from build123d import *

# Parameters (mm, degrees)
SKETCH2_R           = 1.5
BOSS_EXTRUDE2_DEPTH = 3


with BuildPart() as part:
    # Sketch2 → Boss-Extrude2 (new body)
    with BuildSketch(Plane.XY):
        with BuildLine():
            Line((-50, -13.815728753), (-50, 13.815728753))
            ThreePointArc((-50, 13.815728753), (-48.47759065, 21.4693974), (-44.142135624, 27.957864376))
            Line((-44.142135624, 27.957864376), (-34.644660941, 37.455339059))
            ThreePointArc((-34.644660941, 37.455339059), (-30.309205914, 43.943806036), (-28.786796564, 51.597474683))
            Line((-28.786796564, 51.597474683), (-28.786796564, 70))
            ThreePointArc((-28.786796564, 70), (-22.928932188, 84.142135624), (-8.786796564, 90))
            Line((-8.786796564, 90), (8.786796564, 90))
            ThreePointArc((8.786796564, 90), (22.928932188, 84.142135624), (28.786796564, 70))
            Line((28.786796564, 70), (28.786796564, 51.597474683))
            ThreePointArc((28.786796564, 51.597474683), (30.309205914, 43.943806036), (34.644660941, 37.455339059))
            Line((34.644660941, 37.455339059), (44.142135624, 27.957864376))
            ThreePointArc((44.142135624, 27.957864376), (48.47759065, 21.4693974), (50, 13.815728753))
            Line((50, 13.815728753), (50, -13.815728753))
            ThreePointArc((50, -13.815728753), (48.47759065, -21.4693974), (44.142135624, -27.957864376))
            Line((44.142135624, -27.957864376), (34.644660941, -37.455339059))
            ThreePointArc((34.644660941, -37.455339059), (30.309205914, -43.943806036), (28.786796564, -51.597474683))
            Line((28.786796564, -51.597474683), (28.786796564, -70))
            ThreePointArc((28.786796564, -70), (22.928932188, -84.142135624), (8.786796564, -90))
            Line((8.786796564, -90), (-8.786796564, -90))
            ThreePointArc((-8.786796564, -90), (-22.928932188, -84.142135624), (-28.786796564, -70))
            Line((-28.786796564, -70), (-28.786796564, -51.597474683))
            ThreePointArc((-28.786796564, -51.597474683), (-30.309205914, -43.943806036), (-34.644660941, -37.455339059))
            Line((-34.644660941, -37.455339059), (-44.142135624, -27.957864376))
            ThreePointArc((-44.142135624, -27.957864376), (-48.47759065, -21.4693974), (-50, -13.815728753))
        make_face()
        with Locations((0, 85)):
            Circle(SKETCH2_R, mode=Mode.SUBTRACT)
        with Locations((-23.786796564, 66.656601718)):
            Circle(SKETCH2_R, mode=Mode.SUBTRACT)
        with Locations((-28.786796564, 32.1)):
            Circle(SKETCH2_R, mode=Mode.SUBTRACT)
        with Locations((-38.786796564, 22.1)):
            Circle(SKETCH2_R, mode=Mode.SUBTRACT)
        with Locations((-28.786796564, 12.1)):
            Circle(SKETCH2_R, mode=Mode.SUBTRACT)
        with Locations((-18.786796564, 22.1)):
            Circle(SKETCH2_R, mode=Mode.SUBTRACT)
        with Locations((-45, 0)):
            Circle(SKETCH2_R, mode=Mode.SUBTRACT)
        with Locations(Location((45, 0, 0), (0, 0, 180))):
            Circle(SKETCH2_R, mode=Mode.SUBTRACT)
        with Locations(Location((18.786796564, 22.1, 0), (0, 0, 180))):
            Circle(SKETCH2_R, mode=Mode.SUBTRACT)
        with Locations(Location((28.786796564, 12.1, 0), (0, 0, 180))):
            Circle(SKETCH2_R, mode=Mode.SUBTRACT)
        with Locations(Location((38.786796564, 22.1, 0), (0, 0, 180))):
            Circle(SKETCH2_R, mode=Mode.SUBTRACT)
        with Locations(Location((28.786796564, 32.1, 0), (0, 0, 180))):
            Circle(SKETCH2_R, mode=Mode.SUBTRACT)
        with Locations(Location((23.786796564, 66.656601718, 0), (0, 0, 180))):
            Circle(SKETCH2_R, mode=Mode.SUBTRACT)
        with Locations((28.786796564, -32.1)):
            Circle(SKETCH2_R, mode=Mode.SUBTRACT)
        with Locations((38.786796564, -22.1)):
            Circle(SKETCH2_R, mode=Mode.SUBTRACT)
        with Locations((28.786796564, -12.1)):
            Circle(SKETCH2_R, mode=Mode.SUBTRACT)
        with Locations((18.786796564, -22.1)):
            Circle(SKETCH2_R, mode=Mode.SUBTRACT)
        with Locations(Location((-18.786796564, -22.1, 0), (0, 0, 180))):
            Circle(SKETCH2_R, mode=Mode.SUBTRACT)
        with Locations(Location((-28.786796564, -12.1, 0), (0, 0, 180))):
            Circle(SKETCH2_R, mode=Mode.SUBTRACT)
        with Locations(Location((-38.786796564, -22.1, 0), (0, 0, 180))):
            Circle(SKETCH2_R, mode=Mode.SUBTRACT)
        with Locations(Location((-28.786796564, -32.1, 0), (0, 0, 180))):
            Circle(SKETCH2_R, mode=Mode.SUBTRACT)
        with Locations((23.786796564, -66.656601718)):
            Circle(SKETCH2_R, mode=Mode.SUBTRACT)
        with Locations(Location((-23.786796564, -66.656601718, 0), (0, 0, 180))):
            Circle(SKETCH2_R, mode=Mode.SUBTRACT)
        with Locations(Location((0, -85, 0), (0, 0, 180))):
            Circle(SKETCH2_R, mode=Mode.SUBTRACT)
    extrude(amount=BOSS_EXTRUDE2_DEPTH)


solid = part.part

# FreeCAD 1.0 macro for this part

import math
import FreeCAD as App
import Part
import Sketcher
Q = App.Units.Quantity

doc = App.newDocument("Part")
body = doc.addObject("PartDesign::Body", "Body")

# Sketch on XY plane
sketch1 = body.newObject("Sketcher::SketchObject", "Sketch")
sketch1.AttachmentSupport = (doc.getObject("XY_Plane"), [""])
sketch1.MapMode = "FlatFace"
sketch1.addGeometry(Part.LineSegment(App.Vector(-50, 13.815729, 0), App.Vector(-50, -13.815729, 0)), False)
sketch1.addGeometry(Part.ArcOfCircle(Part.Circle(App.Vector(-30, -13.815729, 0), App.Vector(0, 0, 1), 20), math.radians(-180), math.radians(-135)), False)
sketch1.addGeometry(Part.LineSegment(App.Vector(-44.142136, -27.957864, 0), App.Vector(-34.644661, -37.455339, 0)), False)
sketch1.addGeometry(Part.ArcOfCircle(Part.Circle(App.Vector(-48.786797, -51.597475, 0), App.Vector(0, 0, 1), 20), math.radians(0), math.radians(45)), False)
sketch1.addGeometry(Part.LineSegment(App.Vector(-28.786797, -51.597475, 0), App.Vector(-28.786797, -70, 0)), False)
sketch1.addGeometry(Part.ArcOfCircle(Part.Circle(App.Vector(-8.786797, -70, 0), App.Vector(0, 0, 1), 20), math.radians(180), math.radians(270)), False)
sketch1.addGeometry(Part.LineSegment(App.Vector(-8.786797, -90, 0), App.Vector(8.786797, -90, 0)), False)
sketch1.addGeometry(Part.ArcOfCircle(Part.Circle(App.Vector(8.786797, -70, 0), App.Vector(0, 0, 1), 20), math.radians(-90), math.radians(0)), False)
sketch1.addGeometry(Part.LineSegment(App.Vector(28.786797, -70, 0), App.Vector(28.786797, -51.597475, 0)), False)
sketch1.addGeometry(Part.ArcOfCircle(Part.Circle(App.Vector(48.786797, -51.597475, 0), App.Vector(0, 0, 1), 20), math.radians(135), math.radians(180)), False)
sketch1.addGeometry(Part.LineSegment(App.Vector(34.644661, -37.455339, 0), App.Vector(44.142136, -27.957864, 0)), False)
sketch1.addGeometry(Part.ArcOfCircle(Part.Circle(App.Vector(30, -13.815729, 0), App.Vector(0, 0, 1), 20), math.radians(-45), math.radians(0)), False)
sketch1.addGeometry(Part.LineSegment(App.Vector(50, -13.815729, 0), App.Vector(50, 13.815729, 0)), False)
sketch1.addGeometry(Part.ArcOfCircle(Part.Circle(App.Vector(30, 13.815729, 0), App.Vector(0, 0, 1), 20), math.radians(0), math.radians(45)), False)
sketch1.addGeometry(Part.LineSegment(App.Vector(44.142136, 27.957864, 0), App.Vector(34.644661, 37.455339, 0)), False)
sketch1.addGeometry(Part.ArcOfCircle(Part.Circle(App.Vector(48.786797, 51.597475, 0), App.Vector(0, 0, 1), 20), math.radians(-180), math.radians(-135)), False)
sketch1.addGeometry(Part.LineSegment(App.Vector(28.786797, 51.597475, 0), App.Vector(28.786797, 70, 0)), False)
sketch1.addGeometry(Part.ArcOfCircle(Part.Circle(App.Vector(8.786797, 70, 0), App.Vector(0, 0, 1), 20), math.radians(0), math.radians(90)), False)
sketch1.addGeometry(Part.LineSegment(App.Vector(8.786797, 90, 0), App.Vector(-8.786797, 90, 0)), False)
sketch1.addGeometry(Part.ArcOfCircle(Part.Circle(App.Vector(-8.786797, 70, 0), App.Vector(0, 0, 1), 20), math.radians(90), math.radians(180)), False)
sketch1.addGeometry(Part.LineSegment(App.Vector(-28.786797, 70, 0), App.Vector(-28.786797, 51.597475, 0)), False)
sketch1.addGeometry(Part.ArcOfCircle(Part.Circle(App.Vector(-48.786797, 51.597475, 0), App.Vector(0, 0, 1), 20), math.radians(-45), math.radians(0)), False)
sketch1.addGeometry(Part.LineSegment(App.Vector(-34.644661, 37.455339, 0), App.Vector(-44.142136, 27.957864, 0)), False)
sketch1.addGeometry(Part.ArcOfCircle(Part.Circle(App.Vector(-30, 13.815729, 0), App.Vector(0, 0, 1), 20), math.radians(135), math.radians(180)), False)
sketch1.addGeometry(Part.Circle(App.Vector(23.786797, -66.656602, 0), App.Vector(0, 0, 1), 1.5), False)
sketch1.addGeometry(Part.Circle(App.Vector(38.786797, -22.1, 0), App.Vector(0, 0, 1), 1.5), False)
sketch1.addGeometry(Part.Circle(App.Vector(28.786797, -32.1, 0), App.Vector(0, 0, 1), 1.5), False)
sketch1.addGeometry(Part.Circle(App.Vector(28.786797, -12.1, 0), App.Vector(0, 0, 1), 1.5), False)
sketch1.addGeometry(Part.Circle(App.Vector(18.786797, -22.1, 0), App.Vector(0, 0, 1), 1.5), False)
sketch1.addGeometry(Part.Circle(App.Vector(0, -85, 0), App.Vector(0, 0, 1), 1.5), False)
sketch1.addGeometry(Part.Circle(App.Vector(-23.786797, -66.656602, 0), App.Vector(0, 0, 1), 1.5), False)
sketch1.addGeometry(Part.Circle(App.Vector(-18.786797, -22.1, 0), App.Vector(0, 0, 1), 1.5), False)
sketch1.addGeometry(Part.Circle(App.Vector(-28.786797, -32.1, 0), App.Vector(0, 0, 1), 1.5), False)
sketch1.addGeometry(Part.Circle(App.Vector(-38.786797, -22.1, 0), App.Vector(0, 0, 1), 1.5), False)
sketch1.addGeometry(Part.Circle(App.Vector(-28.786797, -12.1, 0), App.Vector(0, 0, 1), 1.5), False)
sketch1.addGeometry(Part.Circle(App.Vector(45, 0, 0), App.Vector(0, 0, 1), 1.5), False)
sketch1.addGeometry(Part.Circle(App.Vector(28.786797, 12.1, 0), App.Vector(0, 0, 1), 1.5), False)
sketch1.addGeometry(Part.Circle(App.Vector(38.786797, 22.1, 0), App.Vector(0, 0, 1), 1.5), False)
sketch1.addGeometry(Part.Circle(App.Vector(28.786797, 32.1, 0), App.Vector(0, 0, 1), 1.5), False)
sketch1.addGeometry(Part.Circle(App.Vector(18.786797, 22.1, 0), App.Vector(0, 0, 1), 1.5), False)
sketch1.addGeometry(Part.Circle(App.Vector(23.786797, 66.656602, 0), App.Vector(0, 0, 1), 1.5), False)
sketch1.addGeometry(Part.Circle(App.Vector(-18.786797, 22.1, 0), App.Vector(0, 0, 1), 1.5), False)
sketch1.addGeometry(Part.Circle(App.Vector(-28.786797, 12.1, 0), App.Vector(0, 0, 1), 1.5), False)
sketch1.addGeometry(Part.Circle(App.Vector(-45, 0, 0), App.Vector(0, 0, 1), 1.5), False)
sketch1.addGeometry(Part.Circle(App.Vector(-28.786797, 32.1, 0), App.Vector(0, 0, 1), 1.5), False)
sketch1.addGeometry(Part.Circle(App.Vector(-38.786797, 22.1, 0), App.Vector(0, 0, 1), 1.5), False)
sketch1.addGeometry(Part.Circle(App.Vector(0, 85, 0), App.Vector(0, 0, 1), 1.5), False)
sketch1.addGeometry(Part.Circle(App.Vector(-23.786797, 66.656602, 0), App.Vector(0, 0, 1), 1.5), False)
sketch1.addConstraint(Sketcher.Constraint("Tangent", 0, 2, 1, 1))
sketch1.addConstraint(Sketcher.Constraint("Tangent", 1, 2, 2, 1))
sketch1.addConstraint(Sketcher.Constraint("Tangent", 2, 2, 3, 2))
sketch1.addConstraint(Sketcher.Constraint("Tangent", 3, 1, 4, 1))
sketch1.addConstraint(Sketcher.Constraint("Tangent", 4, 2, 5, 1))
sketch1.addConstraint(Sketcher.Constraint("Tangent", 5, 2, 6, 1))
sketch1.addConstraint(Sketcher.Constraint("Tangent", 6, 2, 7, 1))
sketch1.addConstraint(Sketcher.Constraint("Tangent", 7, 2, 8, 1))
sketch1.addConstraint(Sketcher.Constraint("Tangent", 8, 2, 9, 2))
sketch1.addConstraint(Sketcher.Constraint("Tangent", 9, 1, 10, 1))
sketch1.addConstraint(Sketcher.Constraint("Tangent", 10, 2, 11, 1))
sketch1.addConstraint(Sketcher.Constraint("Tangent", 11, 2, 12, 1))
sketch1.addConstraint(Sketcher.Constraint("Tangent", 12, 2, 13, 1))
sketch1.addConstraint(Sketcher.Constraint("Tangent", 13, 2, 14, 1))
sketch1.addConstraint(Sketcher.Constraint("Tangent", 14, 2, 15, 2))
sketch1.addConstraint(Sketcher.Constraint("Tangent", 15, 1, 16, 1))
sketch1.addConstraint(Sketcher.Constraint("Tangent", 16, 2, 17, 1))
sketch1.addConstraint(Sketcher.Constraint("Tangent", 17, 2, 18, 1))
sketch1.addConstraint(Sketcher.Constraint("Tangent", 18, 2, 19, 1))
sketch1.addConstraint(Sketcher.Constraint("Tangent", 19, 2, 20, 1))
sketch1.addConstraint(Sketcher.Constraint("Tangent", 20, 2, 21, 2))
sketch1.addConstraint(Sketcher.Constraint("Tangent", 21, 1, 22, 1))
sketch1.addConstraint(Sketcher.Constraint("Tangent", 22, 2, 23, 1))
sketch1.addConstraint(Sketcher.Constraint("Tangent", 23, 2, 0, 1))
sketch1.addConstraint(Sketcher.Constraint("Vertical", 0))
sketch1.addConstraint(Sketcher.Constraint("Vertical", 4))
sketch1.addConstraint(Sketcher.Constraint("Horizontal", 6))
sketch1.addConstraint(Sketcher.Constraint("Vertical", 8))
sketch1.addConstraint(Sketcher.Constraint("Vertical", 12))
sketch1.addConstraint(Sketcher.Constraint("Vertical", 16))
sketch1.addConstraint(Sketcher.Constraint("Horizontal", 18))
sketch1.addConstraint(Sketcher.Constraint("Vertical", 20))
sketch1.addConstraint(Sketcher.Constraint("Equal", 1, 3))
sketch1.addConstraint(Sketcher.Constraint("Equal", 3, 5))
sketch1.addConstraint(Sketcher.Constraint("Equal", 5, 7))
sketch1.addConstraint(Sketcher.Constraint("Equal", 7, 9))
sketch1.addConstraint(Sketcher.Constraint("Equal", 9, 11))
sketch1.addConstraint(Sketcher.Constraint("Equal", 11, 13))
sketch1.addConstraint(Sketcher.Constraint("Equal", 13, 15))
sketch1.addConstraint(Sketcher.Constraint("Equal", 15, 17))
sketch1.addConstraint(Sketcher.Constraint("Equal", 17, 19))
sketch1.addConstraint(Sketcher.Constraint("Equal", 19, 21))
sketch1.addConstraint(Sketcher.Constraint("Equal", 21, 23))
sketch1.addConstraint(Sketcher.Constraint("Equal", 24, 25))
sketch1.addConstraint(Sketcher.Constraint("Equal", 25, 26))
sketch1.addConstraint(Sketcher.Constraint("Equal", 26, 27))
sketch1.addConstraint(Sketcher.Constraint("Equal", 27, 28))
sketch1.addConstraint(Sketcher.Constraint("Equal", 28, 29))
sketch1.addConstraint(Sketcher.Constraint("Equal", 29, 30))
sketch1.addConstraint(Sketcher.Constraint("Equal", 30, 31))
sketch1.addConstraint(Sketcher.Constraint("Equal", 31, 32))
sketch1.addConstraint(Sketcher.Constraint("Equal", 32, 33))
sketch1.addConstraint(Sketcher.Constraint("Equal", 33, 34))
sketch1.addConstraint(Sketcher.Constraint("Equal", 34, 35))
sketch1.addConstraint(Sketcher.Constraint("Equal", 35, 36))
sketch1.addConstraint(Sketcher.Constraint("Equal", 36, 37))
sketch1.addConstraint(Sketcher.Constraint("Equal", 37, 38))
sketch1.addConstraint(Sketcher.Constraint("Equal", 38, 39))
sketch1.addConstraint(Sketcher.Constraint("Equal", 39, 40))
sketch1.addConstraint(Sketcher.Constraint("Equal", 40, 41))
sketch1.addConstraint(Sketcher.Constraint("Equal", 41, 42))
sketch1.addConstraint(Sketcher.Constraint("Equal", 42, 43))
sketch1.addConstraint(Sketcher.Constraint("Equal", 43, 44))
sketch1.addConstraint(Sketcher.Constraint("Equal", 44, 45))
sketch1.addConstraint(Sketcher.Constraint("Equal", 45, 46))
sketch1.addConstraint(Sketcher.Constraint("Equal", 46, 47))
sketch1.addConstraint(Sketcher.Constraint("Symmetric", 1, 3, 13, 3, -1, 1))
sketch1.addConstraint(Sketcher.Constraint("Symmetric", 3, 3, 15, 3, -1, 1))
sketch1.addConstraint(Sketcher.Constraint("Symmetric", 7, 3, 19, 3, -1, 1))
sketch1.addConstraint(Sketcher.Constraint("Symmetric", 34, 3, 36, 3, -1, 1))
sketch1.addConstraint(Sketcher.Constraint("Symmetric", 33, 3, 37, 3, -1, 1))
sketch1.addConstraint(Sketcher.Constraint("Symmetric", 32, 3, 38, 3, -1, 1))
sketch1.addConstraint(Sketcher.Constraint("Symmetric", 31, 3, 39, 3, -1, 1))
sketch1.addConstraint(Sketcher.Constraint("Symmetric", 30, 3, 40, 3, -1, 1))
sketch1.addConstraint(Sketcher.Constraint("Symmetric", 28, 3, 41, 3, -1, 1))
sketch1.addConstraint(Sketcher.Constraint("Symmetric", 27, 3, 42, 3, -1, 1))
sketch1.addConstraint(Sketcher.Constraint("Symmetric", 35, 3, 43, 3, -1, 1))
sketch1.addConstraint(Sketcher.Constraint("Symmetric", 26, 3, 44, 3, -1, 1))
sketch1.addConstraint(Sketcher.Constraint("Symmetric", 25, 3, 45, 3, -1, 1))
sketch1.addConstraint(Sketcher.Constraint("Symmetric", 29, 3, 46, 3, -1, 1))
sketch1.addConstraint(Sketcher.Constraint("Symmetric", 24, 3, 47, 3, -1, 1))
sketch1.addConstraint(Sketcher.Constraint("Symmetric", 9, 1, 21, 1, -1, 1))
sketch1.addConstraint(Sketcher.Constraint("Symmetric", 3, 3, 9, 3, -2))
sketch1.addConstraint(Sketcher.Constraint("Symmetric", 24, 3, 30, 3, -2))
sketch1.addConstraint(Sketcher.Constraint("Symmetric", 28, 3, 31, 3, -2))
sketch1.addConstraint(Sketcher.Constraint("Symmetric", 26, 3, 32, 3, -2))
sketch1.addConstraint(Sketcher.Constraint("Symmetric", 25, 3, 33, 3, -2))
sketch1.addConstraint(Sketcher.Constraint("Symmetric", 27, 3, 34, 3, -2))
sketch1.addConstraint(Sketcher.Constraint("PointOnObject", 29, 3, -2))
sketch1.addConstraint(Sketcher.Constraint("PointOnObject", 35, 3, -1))
sketch1.addConstraint(Sketcher.Constraint("Perpendicular", 2, 10))
sketch1.addConstraint(Sketcher.Constraint("Horizontal", 1, 3, 11, 3))
sketch1.addConstraint(Sketcher.Constraint("Horizontal", 25, 3, 28, 3))
sketch1.addConstraint(Sketcher.Constraint("Vertical", 26, 3, 27, 3))
sketch1.addConstraint(Sketcher.Constraint("Vertical", 44, 3, 3, 1))
sketch1.addConstraint(Sketcher.Constraint("Diameter", 24, Q("3 mm")))
sketch1.addConstraint(Sketcher.Constraint("Radius", 1, Q("20 mm")))
sketch1.addConstraint(Sketcher.Constraint("DistanceX", 1, 3, -1, 1, Q("30 mm")))
sketch1.addConstraint(Sketcher.Constraint("DistanceY", 5, 3, -1, 1, Q("70 mm")))
sketch1.addConstraint(Sketcher.Constraint("DistanceY", 29, 3, -1, 1, Q("85 mm")))
sketch1.addConstraint(Sketcher.Constraint("DistanceX", -1, 1, 35, 3, Q("45 mm")))
sketch1.addConstraint(Sketcher.Constraint("DistanceX", 7, 3, 24, 3, Q("15 mm")))
sketch1.addConstraint(Sketcher.Constraint("DistanceX", 25, 3, 9, 3, Q("10 mm")))
sketch1.addConstraint(Sketcher.Constraint("DistanceY", 26, 3, 25, 3, Q("10 mm")))
sketch1.addConstraint(Sketcher.Constraint("DistanceY", 25, 3, 27, 3, Q("10 mm")))
sketch1.addConstraint(Sketcher.Constraint("DistanceX", 28, 3, 26, 3, Q("10 mm")))
sketch1.addConstraint(Sketcher.Constraint("DistanceY", 25, 3, -1, 1, Q("22.1 mm")))
sketch1.addConstraint(Sketcher.Constraint("DistanceY", 24, 3, -1, 1, Q("66.656602 mm")))
sketch1.addConstraint(Sketcher.Constraint("DistanceX", 6, 1, 6, 2, Q("17.573593 mm")))
sketch1.addConstraint(Sketcher.Constraint("DistanceY", 0, 2, 0, 1, Q("27.631458 mm")))
pad1 = body.newObject("PartDesign::Pad", "Pad")
pad1.Profile = sketch1
pad1.Length = 3

doc.recompute()
